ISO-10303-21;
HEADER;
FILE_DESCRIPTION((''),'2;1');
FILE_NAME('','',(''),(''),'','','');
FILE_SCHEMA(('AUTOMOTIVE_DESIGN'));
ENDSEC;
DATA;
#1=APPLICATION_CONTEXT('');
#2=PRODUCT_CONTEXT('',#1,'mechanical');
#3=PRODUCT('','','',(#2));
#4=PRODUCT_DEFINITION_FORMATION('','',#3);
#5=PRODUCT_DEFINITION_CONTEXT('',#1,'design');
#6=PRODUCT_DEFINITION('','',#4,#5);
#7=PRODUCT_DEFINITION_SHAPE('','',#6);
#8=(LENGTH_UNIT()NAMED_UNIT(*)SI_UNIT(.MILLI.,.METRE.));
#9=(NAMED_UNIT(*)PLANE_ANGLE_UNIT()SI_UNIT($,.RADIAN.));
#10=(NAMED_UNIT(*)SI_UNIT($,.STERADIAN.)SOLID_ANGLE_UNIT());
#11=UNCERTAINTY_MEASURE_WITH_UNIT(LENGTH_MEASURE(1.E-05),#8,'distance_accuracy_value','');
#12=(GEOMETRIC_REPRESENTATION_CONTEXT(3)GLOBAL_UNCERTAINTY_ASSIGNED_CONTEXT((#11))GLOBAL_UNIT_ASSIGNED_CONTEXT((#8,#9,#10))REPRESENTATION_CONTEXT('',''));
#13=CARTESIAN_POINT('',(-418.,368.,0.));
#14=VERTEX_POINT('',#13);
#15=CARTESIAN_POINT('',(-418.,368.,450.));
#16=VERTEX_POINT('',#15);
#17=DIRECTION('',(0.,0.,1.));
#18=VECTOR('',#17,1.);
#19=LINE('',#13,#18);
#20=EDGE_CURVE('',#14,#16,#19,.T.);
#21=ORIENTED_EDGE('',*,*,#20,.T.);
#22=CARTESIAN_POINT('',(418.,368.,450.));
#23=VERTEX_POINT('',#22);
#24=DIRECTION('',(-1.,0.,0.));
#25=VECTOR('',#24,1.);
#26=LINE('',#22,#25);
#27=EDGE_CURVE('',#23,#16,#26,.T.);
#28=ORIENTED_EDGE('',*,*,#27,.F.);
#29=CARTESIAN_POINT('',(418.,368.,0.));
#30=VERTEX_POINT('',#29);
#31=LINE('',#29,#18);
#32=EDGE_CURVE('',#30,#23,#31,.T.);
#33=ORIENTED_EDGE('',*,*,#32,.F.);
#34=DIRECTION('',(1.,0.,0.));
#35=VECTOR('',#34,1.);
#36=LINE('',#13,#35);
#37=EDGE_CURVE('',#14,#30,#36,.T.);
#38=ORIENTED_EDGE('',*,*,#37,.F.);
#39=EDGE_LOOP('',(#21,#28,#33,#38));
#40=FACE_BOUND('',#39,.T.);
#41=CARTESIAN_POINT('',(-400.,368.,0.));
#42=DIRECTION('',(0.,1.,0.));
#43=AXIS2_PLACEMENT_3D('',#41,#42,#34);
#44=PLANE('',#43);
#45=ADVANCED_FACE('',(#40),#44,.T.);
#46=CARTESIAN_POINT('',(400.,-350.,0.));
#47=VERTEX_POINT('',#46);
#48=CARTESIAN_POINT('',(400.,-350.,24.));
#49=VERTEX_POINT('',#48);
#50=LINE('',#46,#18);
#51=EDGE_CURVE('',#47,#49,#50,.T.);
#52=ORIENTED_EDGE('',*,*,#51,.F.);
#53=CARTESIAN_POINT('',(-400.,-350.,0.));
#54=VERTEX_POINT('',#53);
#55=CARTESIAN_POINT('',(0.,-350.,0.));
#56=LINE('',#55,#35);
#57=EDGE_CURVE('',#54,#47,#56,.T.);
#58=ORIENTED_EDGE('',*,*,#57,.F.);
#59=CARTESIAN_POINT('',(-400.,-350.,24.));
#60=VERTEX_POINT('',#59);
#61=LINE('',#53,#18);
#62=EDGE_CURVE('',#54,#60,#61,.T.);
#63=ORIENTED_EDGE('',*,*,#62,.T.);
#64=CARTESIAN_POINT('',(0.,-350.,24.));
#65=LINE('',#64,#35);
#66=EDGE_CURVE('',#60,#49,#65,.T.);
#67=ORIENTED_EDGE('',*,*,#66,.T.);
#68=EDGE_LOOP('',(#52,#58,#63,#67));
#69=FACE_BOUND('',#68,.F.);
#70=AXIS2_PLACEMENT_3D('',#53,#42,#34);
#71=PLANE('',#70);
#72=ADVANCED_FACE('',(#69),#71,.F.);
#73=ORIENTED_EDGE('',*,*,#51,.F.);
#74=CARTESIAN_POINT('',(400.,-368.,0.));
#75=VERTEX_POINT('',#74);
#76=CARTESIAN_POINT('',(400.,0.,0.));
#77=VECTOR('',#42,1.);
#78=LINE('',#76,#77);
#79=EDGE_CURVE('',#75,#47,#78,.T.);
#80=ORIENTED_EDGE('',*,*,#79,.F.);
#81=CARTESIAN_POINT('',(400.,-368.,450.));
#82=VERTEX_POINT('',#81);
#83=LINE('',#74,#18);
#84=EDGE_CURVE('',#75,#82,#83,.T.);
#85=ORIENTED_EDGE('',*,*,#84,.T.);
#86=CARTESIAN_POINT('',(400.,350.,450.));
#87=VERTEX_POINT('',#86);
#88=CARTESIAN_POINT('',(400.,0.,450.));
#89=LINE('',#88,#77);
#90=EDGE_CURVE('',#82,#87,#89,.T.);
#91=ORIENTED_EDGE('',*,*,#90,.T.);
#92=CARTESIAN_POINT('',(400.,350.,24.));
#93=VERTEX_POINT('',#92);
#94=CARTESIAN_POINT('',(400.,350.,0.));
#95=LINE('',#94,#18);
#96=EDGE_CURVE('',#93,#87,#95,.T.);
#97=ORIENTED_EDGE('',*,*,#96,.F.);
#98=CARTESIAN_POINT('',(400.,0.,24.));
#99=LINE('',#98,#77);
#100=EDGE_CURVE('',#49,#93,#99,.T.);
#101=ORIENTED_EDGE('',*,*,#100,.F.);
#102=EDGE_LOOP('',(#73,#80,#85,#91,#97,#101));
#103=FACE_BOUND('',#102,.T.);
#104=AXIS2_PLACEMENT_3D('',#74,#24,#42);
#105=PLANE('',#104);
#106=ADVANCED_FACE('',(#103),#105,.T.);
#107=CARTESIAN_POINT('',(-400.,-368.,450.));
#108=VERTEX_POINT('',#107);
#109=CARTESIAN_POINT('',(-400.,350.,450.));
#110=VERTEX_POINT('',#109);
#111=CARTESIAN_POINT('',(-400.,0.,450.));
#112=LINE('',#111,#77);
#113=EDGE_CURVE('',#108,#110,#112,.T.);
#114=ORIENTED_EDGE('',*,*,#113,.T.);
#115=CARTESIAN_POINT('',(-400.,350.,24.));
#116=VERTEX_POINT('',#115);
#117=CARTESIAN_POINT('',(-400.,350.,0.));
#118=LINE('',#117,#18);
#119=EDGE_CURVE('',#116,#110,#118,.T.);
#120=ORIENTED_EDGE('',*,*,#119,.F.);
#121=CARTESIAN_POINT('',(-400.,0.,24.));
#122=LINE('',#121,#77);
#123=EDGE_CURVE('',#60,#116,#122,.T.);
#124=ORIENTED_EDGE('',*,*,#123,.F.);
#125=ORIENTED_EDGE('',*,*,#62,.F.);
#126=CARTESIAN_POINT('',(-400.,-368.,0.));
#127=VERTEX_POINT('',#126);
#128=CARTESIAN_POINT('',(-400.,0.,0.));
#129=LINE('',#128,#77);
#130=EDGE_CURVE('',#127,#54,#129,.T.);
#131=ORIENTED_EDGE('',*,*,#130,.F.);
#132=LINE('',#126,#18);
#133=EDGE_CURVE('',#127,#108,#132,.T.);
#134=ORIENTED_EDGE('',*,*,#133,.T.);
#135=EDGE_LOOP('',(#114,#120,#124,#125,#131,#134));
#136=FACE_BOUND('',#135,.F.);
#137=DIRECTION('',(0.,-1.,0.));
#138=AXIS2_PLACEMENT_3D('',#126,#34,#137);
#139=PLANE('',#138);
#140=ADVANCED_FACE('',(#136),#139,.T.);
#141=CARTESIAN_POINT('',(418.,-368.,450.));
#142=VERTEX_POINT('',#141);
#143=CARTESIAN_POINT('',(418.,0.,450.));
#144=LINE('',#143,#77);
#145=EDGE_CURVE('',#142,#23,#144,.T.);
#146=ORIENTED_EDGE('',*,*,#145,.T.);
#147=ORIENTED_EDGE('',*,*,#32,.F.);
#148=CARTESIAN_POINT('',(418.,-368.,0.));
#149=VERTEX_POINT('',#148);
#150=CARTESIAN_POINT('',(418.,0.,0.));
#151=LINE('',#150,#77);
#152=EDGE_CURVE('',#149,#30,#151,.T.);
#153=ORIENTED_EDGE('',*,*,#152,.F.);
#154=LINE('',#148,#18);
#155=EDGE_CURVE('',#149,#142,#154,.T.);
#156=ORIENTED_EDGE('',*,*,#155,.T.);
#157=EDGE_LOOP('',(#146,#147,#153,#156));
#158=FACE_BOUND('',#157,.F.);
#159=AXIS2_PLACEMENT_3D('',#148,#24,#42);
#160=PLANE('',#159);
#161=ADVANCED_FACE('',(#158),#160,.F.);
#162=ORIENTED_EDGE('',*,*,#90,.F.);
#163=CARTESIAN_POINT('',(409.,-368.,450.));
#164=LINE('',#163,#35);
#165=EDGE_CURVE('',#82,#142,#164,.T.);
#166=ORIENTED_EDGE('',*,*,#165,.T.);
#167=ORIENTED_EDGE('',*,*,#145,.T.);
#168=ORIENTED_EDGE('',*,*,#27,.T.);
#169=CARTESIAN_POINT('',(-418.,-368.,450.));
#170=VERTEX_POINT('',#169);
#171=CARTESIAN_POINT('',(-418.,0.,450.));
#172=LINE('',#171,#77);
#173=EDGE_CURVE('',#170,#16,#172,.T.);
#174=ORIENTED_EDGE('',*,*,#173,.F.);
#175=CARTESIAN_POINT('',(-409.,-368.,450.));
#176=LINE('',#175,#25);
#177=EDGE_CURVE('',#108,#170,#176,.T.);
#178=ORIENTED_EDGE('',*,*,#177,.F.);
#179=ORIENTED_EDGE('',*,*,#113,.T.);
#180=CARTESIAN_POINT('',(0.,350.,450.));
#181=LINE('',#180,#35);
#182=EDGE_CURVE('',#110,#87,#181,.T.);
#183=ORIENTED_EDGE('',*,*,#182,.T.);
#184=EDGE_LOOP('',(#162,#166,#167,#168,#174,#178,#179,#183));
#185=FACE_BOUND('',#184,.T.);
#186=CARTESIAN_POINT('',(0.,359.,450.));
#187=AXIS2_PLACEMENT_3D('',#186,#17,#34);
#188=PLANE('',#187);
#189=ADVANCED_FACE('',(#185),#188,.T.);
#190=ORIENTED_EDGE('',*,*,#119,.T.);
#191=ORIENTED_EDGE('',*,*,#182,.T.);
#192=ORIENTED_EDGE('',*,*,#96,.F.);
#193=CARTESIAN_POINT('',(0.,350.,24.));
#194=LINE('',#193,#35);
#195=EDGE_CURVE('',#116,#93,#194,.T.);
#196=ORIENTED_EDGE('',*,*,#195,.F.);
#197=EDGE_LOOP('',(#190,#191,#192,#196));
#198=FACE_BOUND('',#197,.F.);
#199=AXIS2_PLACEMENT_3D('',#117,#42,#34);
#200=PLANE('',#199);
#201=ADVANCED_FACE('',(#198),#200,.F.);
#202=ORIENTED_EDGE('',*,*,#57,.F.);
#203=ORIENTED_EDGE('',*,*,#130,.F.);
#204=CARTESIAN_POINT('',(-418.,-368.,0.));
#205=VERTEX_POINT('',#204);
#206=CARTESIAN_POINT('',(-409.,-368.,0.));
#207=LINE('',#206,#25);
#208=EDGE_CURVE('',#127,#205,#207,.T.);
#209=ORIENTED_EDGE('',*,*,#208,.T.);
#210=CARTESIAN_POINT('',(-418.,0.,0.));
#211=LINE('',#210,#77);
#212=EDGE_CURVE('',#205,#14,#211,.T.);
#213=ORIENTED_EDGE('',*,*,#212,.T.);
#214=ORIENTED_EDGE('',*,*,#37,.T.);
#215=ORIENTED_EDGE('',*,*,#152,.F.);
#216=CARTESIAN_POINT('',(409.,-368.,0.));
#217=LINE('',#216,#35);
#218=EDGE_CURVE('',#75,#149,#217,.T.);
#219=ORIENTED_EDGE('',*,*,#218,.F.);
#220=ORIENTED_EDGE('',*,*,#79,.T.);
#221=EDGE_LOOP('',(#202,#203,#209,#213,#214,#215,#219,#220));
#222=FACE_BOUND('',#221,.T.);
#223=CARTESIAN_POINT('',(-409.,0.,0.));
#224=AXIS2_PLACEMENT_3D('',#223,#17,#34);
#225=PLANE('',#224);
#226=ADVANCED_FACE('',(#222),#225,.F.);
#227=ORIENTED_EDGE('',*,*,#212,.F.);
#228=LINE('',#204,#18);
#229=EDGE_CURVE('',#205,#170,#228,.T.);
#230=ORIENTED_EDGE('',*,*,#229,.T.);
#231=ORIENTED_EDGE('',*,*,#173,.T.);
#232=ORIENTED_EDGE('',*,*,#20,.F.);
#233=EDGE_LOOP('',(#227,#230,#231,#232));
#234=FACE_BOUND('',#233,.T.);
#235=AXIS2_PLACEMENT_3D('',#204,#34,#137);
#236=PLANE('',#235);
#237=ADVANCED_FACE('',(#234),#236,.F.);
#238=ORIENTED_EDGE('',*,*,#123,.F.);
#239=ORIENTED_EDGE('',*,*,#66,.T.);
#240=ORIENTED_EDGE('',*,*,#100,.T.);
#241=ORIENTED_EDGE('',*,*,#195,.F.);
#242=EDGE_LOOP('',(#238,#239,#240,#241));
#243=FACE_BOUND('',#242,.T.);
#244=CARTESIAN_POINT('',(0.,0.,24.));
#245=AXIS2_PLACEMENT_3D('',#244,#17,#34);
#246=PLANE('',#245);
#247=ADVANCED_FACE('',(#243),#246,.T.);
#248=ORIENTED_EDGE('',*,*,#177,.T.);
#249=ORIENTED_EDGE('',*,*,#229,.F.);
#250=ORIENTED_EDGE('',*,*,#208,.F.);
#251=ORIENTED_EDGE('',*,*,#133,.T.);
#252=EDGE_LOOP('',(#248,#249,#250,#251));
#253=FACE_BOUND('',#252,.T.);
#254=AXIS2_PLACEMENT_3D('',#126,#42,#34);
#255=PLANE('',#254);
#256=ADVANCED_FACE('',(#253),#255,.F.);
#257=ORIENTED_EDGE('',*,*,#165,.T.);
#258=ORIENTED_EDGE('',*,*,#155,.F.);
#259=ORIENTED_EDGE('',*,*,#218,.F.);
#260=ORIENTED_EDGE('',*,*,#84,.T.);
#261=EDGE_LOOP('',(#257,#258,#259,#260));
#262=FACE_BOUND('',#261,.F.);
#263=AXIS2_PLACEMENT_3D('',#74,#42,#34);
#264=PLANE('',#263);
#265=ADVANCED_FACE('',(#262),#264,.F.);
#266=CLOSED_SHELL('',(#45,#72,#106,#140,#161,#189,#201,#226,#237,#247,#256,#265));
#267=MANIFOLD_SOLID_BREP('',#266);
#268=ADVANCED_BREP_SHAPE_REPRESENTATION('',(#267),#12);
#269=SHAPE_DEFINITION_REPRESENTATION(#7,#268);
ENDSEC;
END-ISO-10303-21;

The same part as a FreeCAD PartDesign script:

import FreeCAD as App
import Part
import Sketcher

V = App.Vector
Q = App.Units.Quantity


def add_polygon(sketch, points):
    """Adds a closed chain of lines whose ends are joined by coincident constraints."""
    first, n = sketch.GeometryCount, len(points)
    for a, b in zip(points, points[1:] + points[:1]):
        sketch.addGeometry(Part.LineSegment(App.Vector(*a, 0), App.Vector(*b, 0)), False)
    for i in range(n):
        sketch.addConstraint(Sketcher.Constraint("Coincident", first + i, 2, first + (i + 1) % n, 1))

doc = App.newDocument("Part")
body = doc.addObject("PartDesign::Body", "Body")

sketch1 = body.newObject("Sketcher::SketchObject", "Sketch")
sketch1.AttachmentSupport = (doc.getObject("XY_Plane"), [""])
sketch1.MapMode = "FlatFace"
add_polygon(sketch1, [(-400, 350), (-400, -350), (400, -350), (400, 350)])
sketch1.addConstraint([
    Sketcher.Constraint("Vertical", 0),
    Sketcher.Constraint("Horizontal", 1),
    Sketcher.Constraint("Vertical", 2),
    Sketcher.Constraint("Horizontal", 3),
    Sketcher.Constraint("Symmetric", 0, 2, 2, 2, -1, 1),
    Sketcher.Constraint("DistanceX", 1, 1, 1, 2, Q("800 mm")),
    Sketcher.Constraint("DistanceY", 0, 2, 0, 1, Q("700 mm")),
])
pad1 = body.newObject("PartDesign::Pad", "Pad")
pad1.Profile = sketch1
pad1.Length = 24

sketch2 = body.newObject("Sketcher::SketchObject", "Sketch001")
sketch2.AttachmentSupport = (doc.getObject("XY_Plane"), [""])
sketch2.MapMode = "FlatFace"
add_polygon(sketch2, [(400, 368), (400, -368), (418, -368), (418, 368)])
sketch2.addConstraint([
    Sketcher.Constraint("Vertical", 0),
    Sketcher.Constraint("Horizontal", 1),
    Sketcher.Constraint("Vertical", 2),
    Sketcher.Constraint("Horizontal", 3),
    Sketcher.Constraint("DistanceX", 1, 1, 1, 2, Q("18 mm")),
    Sketcher.Constraint("DistanceY", 0, 2, 0, 1, Q("736 mm")),
    Sketcher.Constraint("DistanceX", -1, 1, 0, 2, Q("400 mm")),
    Sketcher.Constraint("DistanceY", 0, 2, -1, 1, Q("368 mm")),
])
pad2 = body.newObject("PartDesign::Pad", "Pad001")
pad2.Profile = sketch2
pad2.Length = 450
body2 = doc.addObject("PartDesign::Body", "Body001")
doc.recompute()

body2.BaseFeature = body
doc.recompute()

mirroring = doc.addObject("Part::Mirroring", "Mirroring")
mirroring.Source = body
mirroring.Base = V(0, 0, 0)
mirroring.Normal = V(1, 0, 0)
body3 = doc.addObject("PartDesign::Body", "Body002")
body3.BaseFeature = mirroring
boolean = body2.newObject("PartDesign::Boolean", "Boolean")
boolean.Type = "Fuse"
boolean.addObjects([body3])
doc.recompute()

sketch3 = body2.newObject("Sketcher::SketchObject", "Sketch002")
sketch3.AttachmentSupport = (doc.getObject("XY_Plane001"), [""])
sketch3.MapMode = "FlatFace"
add_polygon(sketch3, [(-400, 368), (-400, 350), (400, 350), (400, 368)])
sketch3.addConstraint([
    Sketcher.Constraint("Vertical", 0),
    Sketcher.Constraint("Horizontal", 1),
    Sketcher.Constraint("Vertical", 2),
    Sketcher.Constraint("Horizontal", 3),
    Sketcher.Constraint("DistanceX", 1, 1, 1, 2, Q("800 mm")),
    Sketcher.Constraint("DistanceY", 0, 2, 0, 1, Q("18 mm")),
    Sketcher.Constraint("DistanceX", 0, 2, -1, 1, Q("400 mm")),
    Sketcher.Constraint("DistanceY", -1, 1, 0, 2, Q("350 mm")),
])
pad3 = body2.newObject("PartDesign::Pad", "Pad002")
pad3.Profile = sketch3
pad3.Length = 450
mirroring.Visibility = False

doc.recompute()
